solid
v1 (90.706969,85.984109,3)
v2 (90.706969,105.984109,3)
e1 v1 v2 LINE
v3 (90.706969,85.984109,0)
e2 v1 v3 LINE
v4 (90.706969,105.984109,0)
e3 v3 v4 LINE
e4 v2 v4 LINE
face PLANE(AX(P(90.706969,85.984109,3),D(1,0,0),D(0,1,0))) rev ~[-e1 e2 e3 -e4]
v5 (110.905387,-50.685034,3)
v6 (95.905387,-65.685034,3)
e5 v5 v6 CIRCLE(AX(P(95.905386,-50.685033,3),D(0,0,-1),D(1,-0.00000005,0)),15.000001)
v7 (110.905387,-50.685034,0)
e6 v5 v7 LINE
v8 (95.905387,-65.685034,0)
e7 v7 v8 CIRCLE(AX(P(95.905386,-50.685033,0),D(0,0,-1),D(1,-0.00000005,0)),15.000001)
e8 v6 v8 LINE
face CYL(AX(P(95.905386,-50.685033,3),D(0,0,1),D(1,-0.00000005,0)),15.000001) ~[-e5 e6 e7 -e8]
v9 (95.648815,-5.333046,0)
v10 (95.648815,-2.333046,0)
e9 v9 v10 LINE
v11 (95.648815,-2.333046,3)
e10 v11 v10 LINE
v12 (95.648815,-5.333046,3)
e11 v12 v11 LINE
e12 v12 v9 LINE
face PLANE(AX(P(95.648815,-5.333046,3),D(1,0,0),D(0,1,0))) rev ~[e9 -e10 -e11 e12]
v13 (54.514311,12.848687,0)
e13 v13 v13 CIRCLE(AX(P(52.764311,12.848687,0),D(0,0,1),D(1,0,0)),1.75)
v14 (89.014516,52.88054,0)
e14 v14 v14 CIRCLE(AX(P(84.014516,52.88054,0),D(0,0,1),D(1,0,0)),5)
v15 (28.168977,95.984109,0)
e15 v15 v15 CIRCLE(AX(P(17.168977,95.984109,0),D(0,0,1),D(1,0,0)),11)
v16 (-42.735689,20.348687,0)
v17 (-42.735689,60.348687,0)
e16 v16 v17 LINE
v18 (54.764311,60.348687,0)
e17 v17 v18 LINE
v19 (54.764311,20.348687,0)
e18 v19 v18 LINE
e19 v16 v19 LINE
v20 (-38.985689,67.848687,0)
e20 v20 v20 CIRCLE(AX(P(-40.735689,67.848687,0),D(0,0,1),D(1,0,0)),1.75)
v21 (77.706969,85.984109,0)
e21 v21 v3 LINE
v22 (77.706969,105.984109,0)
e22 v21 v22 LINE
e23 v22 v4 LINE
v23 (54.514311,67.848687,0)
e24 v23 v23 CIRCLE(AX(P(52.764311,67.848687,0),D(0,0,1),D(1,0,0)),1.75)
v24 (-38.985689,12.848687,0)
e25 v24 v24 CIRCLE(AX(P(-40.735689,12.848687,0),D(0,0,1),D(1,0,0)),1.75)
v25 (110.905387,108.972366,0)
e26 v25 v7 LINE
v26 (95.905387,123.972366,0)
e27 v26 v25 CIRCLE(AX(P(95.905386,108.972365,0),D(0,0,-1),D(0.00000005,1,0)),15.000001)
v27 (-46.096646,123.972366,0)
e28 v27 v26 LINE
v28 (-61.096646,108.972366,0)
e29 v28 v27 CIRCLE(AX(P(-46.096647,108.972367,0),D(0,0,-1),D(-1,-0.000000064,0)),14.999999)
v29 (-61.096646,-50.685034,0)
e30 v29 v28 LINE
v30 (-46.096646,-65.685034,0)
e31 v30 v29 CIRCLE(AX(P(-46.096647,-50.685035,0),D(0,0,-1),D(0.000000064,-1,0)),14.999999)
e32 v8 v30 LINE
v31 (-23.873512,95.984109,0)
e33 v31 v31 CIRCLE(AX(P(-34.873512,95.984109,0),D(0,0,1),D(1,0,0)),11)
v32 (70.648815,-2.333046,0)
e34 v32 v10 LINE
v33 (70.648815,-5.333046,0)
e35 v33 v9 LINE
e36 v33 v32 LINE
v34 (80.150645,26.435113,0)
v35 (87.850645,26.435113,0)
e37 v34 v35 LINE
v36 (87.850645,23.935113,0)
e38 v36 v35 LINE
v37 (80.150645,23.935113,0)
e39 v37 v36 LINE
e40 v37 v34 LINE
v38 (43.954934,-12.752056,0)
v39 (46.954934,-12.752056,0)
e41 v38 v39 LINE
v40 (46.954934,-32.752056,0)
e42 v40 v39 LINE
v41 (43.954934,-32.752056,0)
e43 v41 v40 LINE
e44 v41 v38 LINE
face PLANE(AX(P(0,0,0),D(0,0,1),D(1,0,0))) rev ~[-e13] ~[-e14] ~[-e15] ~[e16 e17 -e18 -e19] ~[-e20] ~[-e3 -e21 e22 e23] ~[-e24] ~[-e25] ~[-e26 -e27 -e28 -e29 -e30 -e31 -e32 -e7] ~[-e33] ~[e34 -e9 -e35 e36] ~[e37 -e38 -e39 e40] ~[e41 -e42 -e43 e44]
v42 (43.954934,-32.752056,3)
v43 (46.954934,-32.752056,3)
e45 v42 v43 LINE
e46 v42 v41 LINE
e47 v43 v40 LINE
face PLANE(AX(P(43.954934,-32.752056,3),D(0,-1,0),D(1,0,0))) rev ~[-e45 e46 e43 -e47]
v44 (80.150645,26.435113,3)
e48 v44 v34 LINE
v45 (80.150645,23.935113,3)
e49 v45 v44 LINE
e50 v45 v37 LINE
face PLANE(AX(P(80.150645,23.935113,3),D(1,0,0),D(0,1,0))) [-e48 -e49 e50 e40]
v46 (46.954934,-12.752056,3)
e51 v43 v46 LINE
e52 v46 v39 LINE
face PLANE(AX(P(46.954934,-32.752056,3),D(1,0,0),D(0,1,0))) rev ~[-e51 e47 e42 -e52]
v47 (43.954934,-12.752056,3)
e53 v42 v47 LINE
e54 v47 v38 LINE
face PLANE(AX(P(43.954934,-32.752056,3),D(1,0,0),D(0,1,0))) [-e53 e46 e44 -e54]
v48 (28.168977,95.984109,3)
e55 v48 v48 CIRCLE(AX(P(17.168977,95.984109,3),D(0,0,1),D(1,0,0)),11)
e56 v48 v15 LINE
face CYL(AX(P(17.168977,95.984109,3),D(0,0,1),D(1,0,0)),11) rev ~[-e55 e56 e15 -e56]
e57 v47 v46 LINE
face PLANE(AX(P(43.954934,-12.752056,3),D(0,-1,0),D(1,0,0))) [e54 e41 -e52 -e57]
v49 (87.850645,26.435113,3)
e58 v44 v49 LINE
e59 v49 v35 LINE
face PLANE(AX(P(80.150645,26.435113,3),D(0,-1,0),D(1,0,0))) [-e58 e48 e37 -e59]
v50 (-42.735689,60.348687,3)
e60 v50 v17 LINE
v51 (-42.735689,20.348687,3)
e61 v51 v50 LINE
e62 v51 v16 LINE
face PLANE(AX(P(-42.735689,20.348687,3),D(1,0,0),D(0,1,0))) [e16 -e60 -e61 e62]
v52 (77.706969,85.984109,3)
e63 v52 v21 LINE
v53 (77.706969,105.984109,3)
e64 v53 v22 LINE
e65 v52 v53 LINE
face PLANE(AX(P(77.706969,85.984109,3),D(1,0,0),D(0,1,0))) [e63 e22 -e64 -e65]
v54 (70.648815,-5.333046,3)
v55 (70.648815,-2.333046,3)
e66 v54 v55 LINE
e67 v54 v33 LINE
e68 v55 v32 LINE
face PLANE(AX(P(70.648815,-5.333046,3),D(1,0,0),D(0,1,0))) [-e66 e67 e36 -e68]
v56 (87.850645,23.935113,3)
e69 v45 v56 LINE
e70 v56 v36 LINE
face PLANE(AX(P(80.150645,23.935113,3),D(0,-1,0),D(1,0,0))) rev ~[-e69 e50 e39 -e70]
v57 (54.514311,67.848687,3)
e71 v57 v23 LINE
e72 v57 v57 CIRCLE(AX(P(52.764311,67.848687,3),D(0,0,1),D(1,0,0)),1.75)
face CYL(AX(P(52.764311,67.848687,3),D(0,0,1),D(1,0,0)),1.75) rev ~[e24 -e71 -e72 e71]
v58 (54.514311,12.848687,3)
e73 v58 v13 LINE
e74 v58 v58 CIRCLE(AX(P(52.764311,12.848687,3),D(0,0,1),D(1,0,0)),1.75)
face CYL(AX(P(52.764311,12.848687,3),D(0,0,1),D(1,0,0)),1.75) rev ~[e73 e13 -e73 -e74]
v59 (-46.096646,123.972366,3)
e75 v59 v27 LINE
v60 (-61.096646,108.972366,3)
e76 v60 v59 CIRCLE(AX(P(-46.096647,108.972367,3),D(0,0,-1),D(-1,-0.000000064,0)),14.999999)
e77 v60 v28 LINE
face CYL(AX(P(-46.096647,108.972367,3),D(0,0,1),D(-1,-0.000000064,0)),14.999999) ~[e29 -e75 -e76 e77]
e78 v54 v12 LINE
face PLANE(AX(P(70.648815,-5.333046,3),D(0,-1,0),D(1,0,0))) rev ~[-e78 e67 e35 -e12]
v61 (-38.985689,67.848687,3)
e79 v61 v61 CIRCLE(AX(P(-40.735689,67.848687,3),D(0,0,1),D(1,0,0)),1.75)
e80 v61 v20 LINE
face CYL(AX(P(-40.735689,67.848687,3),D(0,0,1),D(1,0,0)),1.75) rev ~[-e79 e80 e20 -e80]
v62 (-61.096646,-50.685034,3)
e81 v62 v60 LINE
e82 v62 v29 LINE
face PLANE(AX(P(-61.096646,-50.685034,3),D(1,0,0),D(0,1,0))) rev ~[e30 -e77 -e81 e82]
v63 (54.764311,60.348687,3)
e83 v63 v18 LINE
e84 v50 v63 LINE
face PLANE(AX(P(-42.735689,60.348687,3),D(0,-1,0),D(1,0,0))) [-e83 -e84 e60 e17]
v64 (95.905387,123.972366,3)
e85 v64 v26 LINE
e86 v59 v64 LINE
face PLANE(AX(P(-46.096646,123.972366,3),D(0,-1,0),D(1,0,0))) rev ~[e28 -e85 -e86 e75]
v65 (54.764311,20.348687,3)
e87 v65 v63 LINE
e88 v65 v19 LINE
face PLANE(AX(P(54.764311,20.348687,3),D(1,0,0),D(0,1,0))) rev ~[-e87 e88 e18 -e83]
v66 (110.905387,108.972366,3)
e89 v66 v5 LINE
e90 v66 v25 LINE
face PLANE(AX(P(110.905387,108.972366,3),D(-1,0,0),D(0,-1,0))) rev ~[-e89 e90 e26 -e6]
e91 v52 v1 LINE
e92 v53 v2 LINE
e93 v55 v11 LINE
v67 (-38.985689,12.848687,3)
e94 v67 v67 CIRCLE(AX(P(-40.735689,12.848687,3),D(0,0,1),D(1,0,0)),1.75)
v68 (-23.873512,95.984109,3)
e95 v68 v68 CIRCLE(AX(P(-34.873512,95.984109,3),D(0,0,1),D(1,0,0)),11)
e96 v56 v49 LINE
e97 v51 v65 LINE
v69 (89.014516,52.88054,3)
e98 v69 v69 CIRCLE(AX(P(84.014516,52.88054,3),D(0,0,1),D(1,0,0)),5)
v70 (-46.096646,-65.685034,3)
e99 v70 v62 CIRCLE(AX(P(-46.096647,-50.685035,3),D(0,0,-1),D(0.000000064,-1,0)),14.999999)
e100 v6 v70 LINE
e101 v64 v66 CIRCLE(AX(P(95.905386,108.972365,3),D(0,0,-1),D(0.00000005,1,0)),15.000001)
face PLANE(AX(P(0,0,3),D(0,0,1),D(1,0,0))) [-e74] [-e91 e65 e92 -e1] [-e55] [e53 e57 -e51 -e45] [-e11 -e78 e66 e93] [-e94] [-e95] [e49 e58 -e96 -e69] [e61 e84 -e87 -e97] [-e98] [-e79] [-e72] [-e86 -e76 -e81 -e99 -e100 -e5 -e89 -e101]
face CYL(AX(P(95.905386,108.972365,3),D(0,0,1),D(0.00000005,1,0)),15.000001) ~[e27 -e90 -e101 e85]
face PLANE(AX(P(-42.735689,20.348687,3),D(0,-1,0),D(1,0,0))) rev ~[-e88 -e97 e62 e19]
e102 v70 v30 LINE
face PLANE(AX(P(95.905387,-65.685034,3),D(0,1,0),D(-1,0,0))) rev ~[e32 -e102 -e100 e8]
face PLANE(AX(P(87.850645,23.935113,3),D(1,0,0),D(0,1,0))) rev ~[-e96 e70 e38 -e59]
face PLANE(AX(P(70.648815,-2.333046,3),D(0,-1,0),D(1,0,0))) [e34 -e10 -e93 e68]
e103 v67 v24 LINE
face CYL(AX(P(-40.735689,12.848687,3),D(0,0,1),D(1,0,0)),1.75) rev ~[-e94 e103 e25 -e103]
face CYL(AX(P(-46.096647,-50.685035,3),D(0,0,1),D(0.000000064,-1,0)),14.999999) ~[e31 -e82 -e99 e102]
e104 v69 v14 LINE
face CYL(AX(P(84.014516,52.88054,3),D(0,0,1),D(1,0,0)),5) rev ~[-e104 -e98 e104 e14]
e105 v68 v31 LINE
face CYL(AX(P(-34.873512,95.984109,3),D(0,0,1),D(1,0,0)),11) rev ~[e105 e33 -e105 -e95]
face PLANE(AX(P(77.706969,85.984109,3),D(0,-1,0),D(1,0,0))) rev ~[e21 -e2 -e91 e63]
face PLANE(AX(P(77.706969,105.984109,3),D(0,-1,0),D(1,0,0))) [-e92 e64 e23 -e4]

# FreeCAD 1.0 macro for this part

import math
import FreeCAD as App
import Part
import Sketcher
Q = App.Units.Quantity

doc = App.newDocument("Part")
body = doc.addObject("PartDesign::Body", "Body")

# Sketch on XY plane
sketch1 = body.newObject("Sketcher::SketchObject", "Sketch")
sketch1.AttachmentSupport = (doc.getObject("XY_Plane"), [""])
sketch1.MapMode = "FlatFace"
sketch1.addGeometry([
    Part.LineSegment(App.Vector(-124.5, 135.5, 0), App.Vector(-124.5, -135.5, 0)),
    Part.LineSegment(App.Vector(-124.5, -135.5, 0), App.Vector(124.5, -135.5, 0)),
    Part.LineSegment(App.Vector(124.5, -135.5, 0), App.Vector(124.5, 135.5, 0)),
    Part.LineSegment(App.Vector(124.5, 135.5, 0), App.Vector(-124.5, 135.5, 0)),
], False)
sketch1.addConstraint([
    Sketcher.Constraint("Coincident", 0, 2, 1, 1),
    Sketcher.Constraint("Coincident", 1, 2, 2, 1),
    Sketcher.Constraint("Coincident", 2, 2, 3, 1),
    Sketcher.Constraint("Coincident", 3, 2, 0, 1),
    Sketcher.Constraint("Vertical", 0),
    Sketcher.Constraint("Horizontal", 1),
    Sketcher.Constraint("Vertical", 2),
    Sketcher.Constraint("Horizontal", 3),
    Sketcher.Constraint("Symmetric", 0, 2, 2, 2, -1, 1),
    Sketcher.Constraint("DistanceX", 1, 1, 1, 2, Q("249 mm")),
    Sketcher.Constraint("DistanceY", 0, 2, 0, 1, Q("271 mm")),
])
pad1 = body.newObject("PartDesign::Pad", "Pad")
pad1.Profile = sketch1
pad1.Length = 3

# Sketch on XY plane
sketch2 = body.newObject("Sketcher::SketchObject", "Sketch001")
sketch2.AttachmentSupport = (doc.getObject("XY_Plane"), [""])
sketch2.MapMode = "FlatFace"
sketch2.AttachmentOffset = App.Placement(App.Vector(0, 0, 3), App.Rotation())
sketch2.addGeometry([
    Part.LineSegment(App.Vector(-42.735689, 60.348687, 0), App.Vector(-42.735689, 20.348687, 0)),  # 0
    Part.LineSegment(App.Vector(-42.735689, 20.348687, 0), App.Vector(54.764311, 20.348687, 0)),  # 1
    Part.LineSegment(App.Vector(54.764311, 20.348687, 0), App.Vector(54.764311, 60.348687, 0)),  # 2
    Part.LineSegment(App.Vector(54.764311, 60.348687, 0), App.Vector(-42.735689, 60.348687, 0)),  # 3
    Part.Circle(App.Vector(-34.873512, 95.984109, 0), App.Vector(0, 0, 1), 11),  # 4
    Part.Circle(App.Vector(17.168977, 95.984109, 0), App.Vector(0, 0, 1), 11),  # 5
    Part.Circle(App.Vector(-40.735689, 67.848687, 0), App.Vector(0, 0, 1), 1.75),  # 6
    Part.Circle(App.Vector(52.764311, 67.848687, 0), App.Vector(0, 0, 1), 1.75),  # 7
    Part.Circle(App.Vector(52.764311, 12.848687, 0), App.Vector(0, 0, 1), 1.75),  # 8
    Part.Circle(App.Vector(-40.735689, 12.848687, 0), App.Vector(0, 0, 1), 1.75),  # 9
    Part.LineSegment(App.Vector(43.954934, -12.752056, 0), App.Vector(43.954934, -32.752056, 0)),  # 10
    Part.LineSegment(App.Vector(43.954934, -32.752056, 0), App.Vector(46.954934, -32.752056, 0)),  # 11
    Part.LineSegment(App.Vector(46.954934, -32.752056, 0), App.Vector(46.954934, -12.752056, 0)),  # 12
    Part.LineSegment(App.Vector(46.954934, -12.752056, 0), App.Vector(43.954934, -12.752056, 0)),  # 13
    Part.LineSegment(App.Vector(77.706969, 105.984109, 0), App.Vector(77.706969, 85.984109, 0)),  # 14
    Part.LineSegment(App.Vector(77.706969, 85.984109, 0), App.Vector(90.706969, 85.984109, 0)),  # 15
    Part.LineSegment(App.Vector(90.706969, 85.984109, 0), App.Vector(90.706969, 105.984109, 0)),  # 16
    Part.LineSegment(App.Vector(90.706969, 105.984109, 0), App.Vector(77.706969, 105.984109, 0)),  # 17
    Part.LineSegment(App.Vector(70.648815, -2.333046, 0), App.Vector(70.648815, -5.333046, 0)),  # 18
    Part.LineSegment(App.Vector(70.648815, -5.333046, 0), App.Vector(95.648815, -5.333046, 0)),  # 19
    Part.LineSegment(App.Vector(95.648815, -5.333046, 0), App.Vector(95.648815, -2.333046, 0)),  # 20
    Part.LineSegment(App.Vector(95.648815, -2.333046, 0), App.Vector(70.648815, -2.333046, 0)),  # 21
    Part.Circle(App.Vector(84.014516, 52.88054, 0), App.Vector(0, 0, 1), 5),  # 22
    Part.LineSegment(App.Vector(80.150645, 26.435113, 0), App.Vector(80.150645, 23.935113, 0)),  # 23
    Part.LineSegment(App.Vector(80.150645, 23.935113, 0), App.Vector(87.850645, 23.935113, 0)),  # 24
    Part.LineSegment(App.Vector(87.850645, 23.935113, 0), App.Vector(87.850645, 26.435113, 0)),  # 25
    Part.LineSegment(App.Vector(87.850645, 26.435113, 0), App.Vector(80.150645, 26.435113, 0)),  # 26
], False)
sketch2.addConstraint([
    Sketcher.Constraint("Coincident", 0, 2, 1, 1),
    Sketcher.Constraint("Coincident", 1, 2, 2, 1),
    Sketcher.Constraint("Coincident", 2, 2, 3, 1),
    Sketcher.Constraint("Coincident", 3, 2, 0, 1),
    Sketcher.Constraint("Coincident", 10, 2, 11, 1),
    Sketcher.Constraint("Coincident", 11, 2, 12, 1),
    Sketcher.Constraint("Coincident", 12, 2, 13, 1),
    Sketcher.Constraint("Coincident", 13, 2, 10, 1),
    Sketcher.Constraint("Coincident", 14, 2, 15, 1),
    Sketcher.Constraint("Coincident", 15, 2, 16, 1),
    Sketcher.Constraint("Coincident", 16, 2, 17, 1),
    Sketcher.Constraint("Coincident", 17, 2, 14, 1),
    Sketcher.Constraint("Coincident", 18, 2, 19, 1),
    Sketcher.Constraint("Coincident", 19, 2, 20, 1),
    Sketcher.Constraint("Coincident", 20, 2, 21, 1),
    Sketcher.Constraint("Coincident", 21, 2, 18, 1),
    Sketcher.Constraint("Coincident", 23, 2, 24, 1),
    Sketcher.Constraint("Coincident", 24, 2, 25, 1),
    Sketcher.Constraint("Coincident", 25, 2, 26, 1),
    Sketcher.Constraint("Coincident", 26, 2, 23, 1),
    Sketcher.Constraint("Vertical", 0),
    Sketcher.Constraint("Horizontal", 1),
    Sketcher.Constraint("Vertical", 2),
    Sketcher.Constraint("Horizontal", 3),
    Sketcher.Constraint("Vertical", 10),
    Sketcher.Constraint("Horizontal", 11),
    Sketcher.Constraint("Vertical", 12),
    Sketcher.Constraint("Horizontal", 13),
    Sketcher.Constraint("Vertical", 14),
    Sketcher.Constraint("Horizontal", 15),
    Sketcher.Constraint("Vertical", 16),
    Sketcher.Constraint("Horizontal", 17),
    Sketcher.Constraint("Vertical", 18),
    Sketcher.Constraint("Horizontal", 19),
    Sketcher.Constraint("Vertical", 20),
    Sketcher.Constraint("Horizontal", 21),
    Sketcher.Constraint("Vertical", 23),
    Sketcher.Constraint("Horizontal", 24),
    Sketcher.Constraint("Vertical", 25),
    Sketcher.Constraint("Horizontal", 26),
    Sketcher.Constraint("Equal", 4, 5),
    Sketcher.Constraint("Equal", 6, 7),
    Sketcher.Constraint("Equal", 7, 8),
    Sketcher.Constraint("Equal", 8, 9),
    Sketcher.Constraint("Horizontal", 4, 3, 5, 3),
    Sketcher.Constraint("Horizontal", 6, 3, 7, 3),
    Sketcher.Constraint("Horizontal", 8, 3, 9, 3),
    Sketcher.Constraint("Vertical", 7, 3, 8, 3),
    Sketcher.Constraint("Vertical", 6, 3, 9, 3),
    Sketcher.Constraint("Equal", 12, 14),
    Sketcher.Constraint("Equal", 13, 18),
    Sketcher.Constraint("Diameter", 4, Q("22 mm")),
    Sketcher.Constraint("Diameter", 22, Q("10 mm")),
    Sketcher.Constraint("Diameter", 6, Q("3.5 mm")),
    Sketcher.Constraint("DistanceX", 11, 1, 11, 2, Q("3 mm")),
    Sketcher.Constraint("DistanceX", 15, 1, 15, 2, Q("13 mm")),
    Sketcher.Constraint("DistanceX", 19, 1, 19, 2, Q("25 mm")),
    Sketcher.Constraint("DistanceY", 0, 2, 0, 1, Q("40 mm")),
    Sketcher.Constraint("DistanceY", 10, 2, 10, 1, Q("20 mm")),
    Sketcher.Constraint("DistanceX", 1, 1, 1, 2, Q("97.5 mm")),
    Sketcher.Constraint("DistanceX", 24, 1, 24, 2, Q("7.7 mm")),
    Sketcher.Constraint("DistanceY", 23, 2, 23, 1, Q("2.5 mm")),
    Sketcher.Constraint("DistanceY", 8, 3, 7, 3, Q("55 mm")),
    Sketcher.Constraint("DistanceX", 0, 2, 9, 3, Q("2 mm")),
    Sketcher.Constraint("DistanceX", 8, 3, 1, 2, Q("2 mm")),
    Sketcher.Constraint("DistanceY", 14, 2, 5, 3, Q("10 mm")),
    Sketcher.Constraint("DistanceY", 9, 3, 0, 2, Q("7.5 mm")),
    Sketcher.Constraint("DistanceX", 4, 3, -1, 1, Q("34.873512 mm")),
    Sketcher.Constraint("DistanceY", -1, 1, 4, 3, Q("95.984109 mm")),
    Sketcher.Constraint("DistanceX", 6, 3, -1, 1, Q("40.735689 mm")),
    Sketcher.Constraint("DistanceY", -1, 1, 22, 3, Q("52.88054 mm")),
    Sketcher.Constraint("DistanceX", -1, 1, 14, 2, Q("77.706969 mm")),
    Sketcher.Constraint("DistanceX", 4, 3, 5, 3, Q("52.042489 mm")),
    Sketcher.Constraint("DistanceX", 5, 3, 22, 3, Q("66.845539 mm")),
    Sketcher.Constraint("DistanceX", 12, 2, 18, 2, Q("23.693881 mm")),
    Sketcher.Constraint("DistanceY", 12, 2, 18, 2, Q("7.41901 mm")),
    Sketcher.Constraint("DistanceX", 21, 2, 23, 2, Q("9.50183 mm")),
    Sketcher.Constraint("DistanceY", 21, 2, 23, 2, Q("26.268159 mm")),
    Sketcher.Constraint("DistanceX", 23, 2, 22, 3, Q("3.863871 mm")),
    Sketcher.Constraint("DistanceY", -1, 1, 6, 3, Q("67.848687 mm")),
    Sketcher.Constraint("DistanceY", 10, 2, -1, 1, Q("32.752056 mm")),
])
pocket1 = body.newObject("PartDesign::Pocket", "Pocket")
pocket1.Profile = sketch2
pocket1.Length = 25

# Sketch on XY plane
sketch3 = body.newObject("Sketcher::SketchObject", "Sketch002")
sketch3.AttachmentSupport = (doc.getObject("XY_Plane"), [""])
sketch3.MapMode = "FlatFace"
sketch3.AttachmentOffset = App.Placement(App.Vector(0, 0, 3), App.Rotation())
sketch3.addGeometry([
    Part.LineSegment(App.Vector(-124.5, 135.5, 0), App.Vector(-124.5, -135.5, 0)),  # 0
    Part.LineSegment(App.Vector(-124.5, -135.5, 0), App.Vector(124.5, -135.5, 0)),  # 1
    Part.LineSegment(App.Vector(124.5, -135.5, 0), App.Vector(124.5, 135.5, 0)),  # 2
    Part.LineSegment(App.Vector(124.5, 135.5, 0), App.Vector(-124.5, 135.5, 0)),  # 3
    Part.LineSegment(App.Vector(-61.096646, -50.685034, 0), App.Vector(-61.096646, 108.972366, 0)),  # 4
    Part.ArcOfCircle(Part.Circle(App.Vector(-46.096647, 108.972367, 0), App.Vector(0, 0, 1), 14.999999), math.radians(89.999996), math.radians(180.000004)),  # 5
    Part.LineSegment(App.Vector(-46.096646, 123.972366, 0), App.Vector(95.905387, 123.972366, 0)),  # 6
    Part.ArcOfCircle(Part.Circle(App.Vector(95.905386, 108.972365, 0), App.Vector(0, 0, 1), 15.000001), math.radians(0.000003), math.radians(89.999997)),  # 7
    Part.LineSegment(App.Vector(110.905387, 108.972366, 0), App.Vector(110.905387, -50.685034, 0)),  # 8
    Part.ArcOfCircle(Part.Circle(App.Vector(95.905386, -50.685033, 0), App.Vector(0, 0, 1), 15.000001), math.radians(-89.999997), math.radians(-0.000003)),  # 9
    Part.LineSegment(App.Vector(95.905387, -65.685034, 0), App.Vector(-46.096646, -65.685034, 0)),  # 10
    Part.ArcOfCircle(Part.Circle(App.Vector(-46.096647, -50.685035, 0), App.Vector(0, 0, 1), 14.999999), math.radians(179.999996), math.radians(270.000004)),  # 11
], False)
sketch3.addConstraint([
    Sketcher.Constraint("Coincident", 0, 2, 1, 1),
    Sketcher.Constraint("Coincident", 1, 2, 2, 1),
    Sketcher.Constraint("Coincident", 2, 2, 3, 1),
    Sketcher.Constraint("Coincident", 3, 2, 0, 1),
    Sketcher.Constraint("Tangent", 4, 2, 5, 2),
    Sketcher.Constraint("Tangent", 5, 1, 6, 1),
    Sketcher.Constraint("Tangent", 6, 2, 7, 2),
    Sketcher.Constraint("Tangent", 7, 1, 8, 1),
    Sketcher.Constraint("Tangent", 8, 2, 9, 2),
    Sketcher.Constraint("Tangent", 9, 1, 10, 1),
    Sketcher.Constraint("Tangent", 10, 2, 11, 2),
    Sketcher.Constraint("Tangent", 11, 1, 4, 1),
    Sketcher.Constraint("Vertical", 0),
    Sketcher.Constraint("Horizontal", 1),
    Sketcher.Constraint("Vertical", 2),
    Sketcher.Constraint("Horizontal", 3),
    Sketcher.Constraint("Vertical", 4),
    Sketcher.Constraint("Horizontal", 6),
    Sketcher.Constraint("Vertical", 8),
    Sketcher.Constraint("Horizontal", 10),
    Sketcher.Constraint("Equal", 5, 7),
    Sketcher.Constraint("Equal", 7, 9),
    Sketcher.Constraint("Equal", 9, 11),
    Sketcher.Constraint("Symmetric", 0, 2, 2, 2, -1, 1),
    Sketcher.Constraint("Radius", 5, Q("14.999999 mm")),
    Sketcher.Constraint("DistanceX", 1, 1, 1, 2, Q("249 mm")),
    Sketcher.Constraint("DistanceY", 0, 2, 0, 1, Q("271 mm")),
    Sketcher.Constraint("DistanceY", 4, 1, 4, 2, Q("159.6574 mm")),
    Sketcher.Constraint("DistanceX", 6, 1, 6, 2, Q("142.002033 mm")),
    Sketcher.Constraint("DistanceX", 5, 3, -1, 1, Q("46.096647 mm")),
    Sketcher.Constraint("DistanceY", -1, 1, 5, 3, Q("108.972367 mm")),
])
pocket2 = body.newObject("PartDesign::Pocket", "Pocket001")
pocket2.Profile = sketch3
pocket2.Type = "ThroughAll"

doc.recompute()
